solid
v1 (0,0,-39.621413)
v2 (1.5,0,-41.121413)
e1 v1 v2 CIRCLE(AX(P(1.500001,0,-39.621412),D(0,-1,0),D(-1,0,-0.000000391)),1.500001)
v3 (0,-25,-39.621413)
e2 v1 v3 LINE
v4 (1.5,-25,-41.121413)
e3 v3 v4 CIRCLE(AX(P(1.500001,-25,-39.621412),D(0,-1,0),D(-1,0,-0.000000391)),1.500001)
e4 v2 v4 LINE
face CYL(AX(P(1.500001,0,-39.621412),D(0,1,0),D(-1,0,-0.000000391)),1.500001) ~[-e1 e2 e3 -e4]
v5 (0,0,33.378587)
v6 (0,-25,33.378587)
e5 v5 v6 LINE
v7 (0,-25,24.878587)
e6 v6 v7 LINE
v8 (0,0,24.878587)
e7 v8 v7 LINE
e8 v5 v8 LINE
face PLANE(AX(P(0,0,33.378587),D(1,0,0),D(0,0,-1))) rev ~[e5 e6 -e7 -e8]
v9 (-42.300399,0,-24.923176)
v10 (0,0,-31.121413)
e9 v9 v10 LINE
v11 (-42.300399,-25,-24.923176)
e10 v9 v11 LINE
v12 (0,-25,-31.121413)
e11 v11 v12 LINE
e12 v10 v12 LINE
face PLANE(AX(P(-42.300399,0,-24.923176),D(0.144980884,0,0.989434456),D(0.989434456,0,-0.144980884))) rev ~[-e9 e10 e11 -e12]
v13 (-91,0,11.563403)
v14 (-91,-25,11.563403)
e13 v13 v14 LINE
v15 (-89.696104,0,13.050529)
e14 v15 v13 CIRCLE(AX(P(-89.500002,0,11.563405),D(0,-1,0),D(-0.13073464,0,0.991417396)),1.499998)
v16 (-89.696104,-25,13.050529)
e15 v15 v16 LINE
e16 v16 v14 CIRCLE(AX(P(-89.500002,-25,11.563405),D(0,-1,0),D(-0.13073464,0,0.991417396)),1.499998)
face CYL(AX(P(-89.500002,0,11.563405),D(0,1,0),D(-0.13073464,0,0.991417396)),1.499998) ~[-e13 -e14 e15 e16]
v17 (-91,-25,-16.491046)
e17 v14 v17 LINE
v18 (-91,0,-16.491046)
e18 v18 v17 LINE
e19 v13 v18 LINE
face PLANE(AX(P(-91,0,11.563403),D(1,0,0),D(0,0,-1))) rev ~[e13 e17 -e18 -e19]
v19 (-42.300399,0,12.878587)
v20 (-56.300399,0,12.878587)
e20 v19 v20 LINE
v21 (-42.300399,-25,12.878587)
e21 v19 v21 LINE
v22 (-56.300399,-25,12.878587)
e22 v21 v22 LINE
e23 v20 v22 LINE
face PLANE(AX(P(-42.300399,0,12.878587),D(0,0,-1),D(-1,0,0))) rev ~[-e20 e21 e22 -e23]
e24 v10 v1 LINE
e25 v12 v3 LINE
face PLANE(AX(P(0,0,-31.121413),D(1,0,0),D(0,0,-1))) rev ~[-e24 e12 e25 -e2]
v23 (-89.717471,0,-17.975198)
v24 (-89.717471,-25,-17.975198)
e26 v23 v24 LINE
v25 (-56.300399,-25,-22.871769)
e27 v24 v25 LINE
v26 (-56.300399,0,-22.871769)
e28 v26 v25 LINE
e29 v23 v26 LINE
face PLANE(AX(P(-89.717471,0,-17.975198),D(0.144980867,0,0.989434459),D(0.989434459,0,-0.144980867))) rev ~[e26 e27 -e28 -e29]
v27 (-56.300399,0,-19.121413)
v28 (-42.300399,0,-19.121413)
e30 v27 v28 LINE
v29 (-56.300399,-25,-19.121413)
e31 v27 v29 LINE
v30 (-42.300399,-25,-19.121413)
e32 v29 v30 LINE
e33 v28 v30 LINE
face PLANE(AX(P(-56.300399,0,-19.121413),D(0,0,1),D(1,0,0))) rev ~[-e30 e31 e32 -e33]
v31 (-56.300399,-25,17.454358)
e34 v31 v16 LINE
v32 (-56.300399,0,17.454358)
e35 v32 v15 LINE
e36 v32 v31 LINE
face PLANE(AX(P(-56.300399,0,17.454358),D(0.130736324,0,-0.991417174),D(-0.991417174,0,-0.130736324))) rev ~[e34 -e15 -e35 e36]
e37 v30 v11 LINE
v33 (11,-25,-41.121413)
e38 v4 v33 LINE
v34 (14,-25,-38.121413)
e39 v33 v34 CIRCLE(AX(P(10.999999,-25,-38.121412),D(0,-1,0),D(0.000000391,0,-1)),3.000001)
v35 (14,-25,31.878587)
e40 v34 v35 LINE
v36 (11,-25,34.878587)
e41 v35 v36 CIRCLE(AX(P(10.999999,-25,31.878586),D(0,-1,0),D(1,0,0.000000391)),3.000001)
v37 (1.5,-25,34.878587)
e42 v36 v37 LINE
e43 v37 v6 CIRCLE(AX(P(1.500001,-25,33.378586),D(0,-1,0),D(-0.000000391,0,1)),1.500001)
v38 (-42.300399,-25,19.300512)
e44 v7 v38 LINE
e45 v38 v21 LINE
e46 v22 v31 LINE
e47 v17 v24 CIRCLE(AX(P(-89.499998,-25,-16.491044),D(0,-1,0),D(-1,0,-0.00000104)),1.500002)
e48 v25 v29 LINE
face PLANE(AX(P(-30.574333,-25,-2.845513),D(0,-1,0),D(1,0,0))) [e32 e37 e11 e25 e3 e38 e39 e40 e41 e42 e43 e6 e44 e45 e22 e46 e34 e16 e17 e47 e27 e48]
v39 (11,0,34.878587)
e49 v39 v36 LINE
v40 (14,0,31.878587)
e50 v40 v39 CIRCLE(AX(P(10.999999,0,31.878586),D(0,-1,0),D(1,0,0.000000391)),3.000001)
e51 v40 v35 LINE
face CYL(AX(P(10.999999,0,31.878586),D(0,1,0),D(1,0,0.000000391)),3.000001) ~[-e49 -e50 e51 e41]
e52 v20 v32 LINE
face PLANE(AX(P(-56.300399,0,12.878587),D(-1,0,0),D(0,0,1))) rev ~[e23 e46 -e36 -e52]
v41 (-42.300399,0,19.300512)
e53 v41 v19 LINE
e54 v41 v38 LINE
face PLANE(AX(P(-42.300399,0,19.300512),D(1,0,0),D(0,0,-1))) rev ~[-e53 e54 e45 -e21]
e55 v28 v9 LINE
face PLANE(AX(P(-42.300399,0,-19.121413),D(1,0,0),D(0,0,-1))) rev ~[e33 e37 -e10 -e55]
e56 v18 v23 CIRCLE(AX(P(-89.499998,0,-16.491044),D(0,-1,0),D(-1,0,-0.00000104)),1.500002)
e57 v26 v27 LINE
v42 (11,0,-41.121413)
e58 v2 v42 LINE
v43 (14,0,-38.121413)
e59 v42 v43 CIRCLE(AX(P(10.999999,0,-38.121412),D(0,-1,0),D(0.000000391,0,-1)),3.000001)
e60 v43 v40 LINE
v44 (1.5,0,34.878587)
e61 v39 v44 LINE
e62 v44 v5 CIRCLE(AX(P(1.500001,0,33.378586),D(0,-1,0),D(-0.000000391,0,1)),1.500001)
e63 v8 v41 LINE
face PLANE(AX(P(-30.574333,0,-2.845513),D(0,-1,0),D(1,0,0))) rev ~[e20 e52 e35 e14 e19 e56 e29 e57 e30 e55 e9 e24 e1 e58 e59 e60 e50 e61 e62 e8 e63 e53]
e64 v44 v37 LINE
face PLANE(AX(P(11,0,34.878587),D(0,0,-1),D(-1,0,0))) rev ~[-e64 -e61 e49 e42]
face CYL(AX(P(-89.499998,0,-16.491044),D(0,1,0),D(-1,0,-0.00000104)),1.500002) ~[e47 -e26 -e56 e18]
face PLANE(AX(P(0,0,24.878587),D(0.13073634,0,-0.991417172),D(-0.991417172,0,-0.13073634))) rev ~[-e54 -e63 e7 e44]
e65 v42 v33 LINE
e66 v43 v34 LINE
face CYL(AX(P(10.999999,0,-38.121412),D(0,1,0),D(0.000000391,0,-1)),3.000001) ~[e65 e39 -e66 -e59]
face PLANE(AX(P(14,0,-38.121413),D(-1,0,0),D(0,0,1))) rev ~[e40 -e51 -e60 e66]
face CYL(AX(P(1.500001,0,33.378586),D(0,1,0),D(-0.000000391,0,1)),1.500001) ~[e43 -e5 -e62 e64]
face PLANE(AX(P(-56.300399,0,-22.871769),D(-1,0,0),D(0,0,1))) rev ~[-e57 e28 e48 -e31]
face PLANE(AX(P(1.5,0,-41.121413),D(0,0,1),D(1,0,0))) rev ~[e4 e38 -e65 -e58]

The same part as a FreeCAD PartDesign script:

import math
import FreeCAD as App
import Part
import Sketcher

V = App.Vector

doc = App.newDocument("Part")
params = doc.addObject("Spreadsheet::Sheet", "Params")
for row, (alias, value) in enumerate([
    ("sketch1_radius", "3.000001 mm"),
    ("sketch1_radius2", "1.500001 mm"),
    ("sketch1_width", "14 mm"),
    ("sketch1_height", "70 mm"),
    ("sketch1_width2", "9.5 mm"),
    ("pad1_length", "25 mm"),
], start=1):
    params.set(f"A{row}", alias)
    params.set(f"B{row}", "=" + value)
    params.setAlias(f"B{row}", alias)

body = doc.addObject("PartDesign::Body", "Body")

# Sketch on XZ plane
sketch1 = body.newObject("Sketcher::SketchObject", "Sketch")
sketch1.AttachmentSupport = (doc.getObject("XZ_Plane"), [""])
sketch1.MapMode = "FlatFace"
sketch1.addGeometry([
    Part.LineSegment(V(-56.3, -19.1, 0), V(-42.3, -19.1, 0)),  # 0
    Part.LineSegment(V(-42.3, -19.1, 0), V(-42.3, -24.9, 0)),  # 1
    Part.LineSegment(V(-42.3, -24.9, 0), V(0, -31.1, 0)),  # 2
    Part.LineSegment(V(0, -31.1, 0), V(0, -39.6, 0)),  # 3
    Part.ArcOfCircle(Part.Circle(V(1.5, -39.6, 0), V(0, 0, 1), 1.5), math.radians(-180), math.radians(-90)),  # 4
    Part.LineSegment(V(1.5, -41.1, 0), V(11, -41.1, 0)),  # 5
    Part.ArcOfCircle(Part.Circle(V(11, -38.1, 0), V(0, 0, 1), 3), math.radians(-90), math.radians(0)),  # 6
    Part.LineSegment(V(14, -38.1, 0), V(14, 31.9, 0)),  # 7
    Part.ArcOfCircle(Part.Circle(V(11, 31.9, 0), V(0, 0, 1), 3), math.radians(0), math.radians(90)),  # 8
    Part.LineSegment(V(11, 34.9, 0), V(1.5, 34.9, 0)),  # 9
    Part.ArcOfCircle(Part.Circle(V(1.5, 33.4, 0), V(0, 0, 1), 1.5), math.radians(90), math.radians(180)),  # 10
    Part.LineSegment(V(0, 33.4, 0), V(0, 24.9, 0)),  # 11
    Part.LineSegment(V(0, 24.9, 0), V(-42.3, 19.3, 0)),  # 12
    Part.LineSegment(V(-42.3, 19.3, 0), V(-42.3, 12.9, 0)),  # 13
    Part.LineSegment(V(-42.3, 12.9, 0), V(-56.3, 12.9, 0)),  # 14
    Part.LineSegment(V(-56.3, 12.9, 0), V(-56.3, 17.5, 0)),  # 15
    Part.LineSegment(V(-56.3, 17.5, 0), V(-89.7, 13.1, 0)),  # 16
    Part.ArcOfCircle(Part.Circle(V(-89.5, 11.6, 0), V(0, 0, 1), 1.5), math.radians(98), math.radians(180)),  # 17
    Part.LineSegment(V(-91, 11.6, 0), V(-91, -16.5, 0)),  # 18
    Part.ArcOfCircle(Part.Circle(V(-89.5, -16.5, 0), V(0, 0, 1), 1.5), math.radians(-180), math.radians(-98)),  # 19
    Part.LineSegment(V(-89.7, -18, 0), V(-56.3, -22.9, 0)),  # 20
    Part.LineSegment(V(-56.3, -22.9, 0), V(-56.3, -19.1, 0)),  # 21
], False)
sketch1.addConstraint([
    Sketcher.Constraint("Coincident", 0, 2, 1, 1),
    Sketcher.Constraint("Coincident", 1, 2, 2, 1),
    Sketcher.Constraint("Coincident", 2, 2, 3, 1),
    Sketcher.Constraint("Tangent", 3, 2, 4, 1),
    Sketcher.Constraint("Tangent", 4, 2, 5, 1),
    Sketcher.Constraint("Tangent", 5, 2, 6, 1),
    Sketcher.Constraint("Tangent", 6, 2, 7, 1),
    Sketcher.Constraint("Tangent", 7, 2, 8, 1),
    Sketcher.Constraint("Tangent", 8, 2, 9, 1),
    Sketcher.Constraint("Tangent", 9, 2, 10, 1),
    Sketcher.Constraint("Tangent", 10, 2, 11, 1),
    Sketcher.Constraint("Coincident", 11, 2, 12, 1),
    Sketcher.Constraint("Coincident", 12, 2, 13, 1),
    Sketcher.Constraint("Coincident", 13, 2, 14, 1),
    Sketcher.Constraint("Coincident", 14, 2, 15, 1),
    Sketcher.Constraint("Coincident", 15, 2, 16, 1),
    Sketcher.Constraint("Tangent", 16, 2, 17, 1),
    Sketcher.Constraint("Tangent", 17, 2, 18, 1),
    Sketcher.Constraint("Tangent", 18, 2, 19, 1),
    Sketcher.Constraint("Tangent", 19, 2, 20, 1),
    Sketcher.Constraint("Coincident", 20, 2, 21, 1),
    Sketcher.Constraint("Coincident", 21, 2, 0, 1),
    Sketcher.Constraint("Horizontal", 0),
    Sketcher.Constraint("Vertical", 1),
    Sketcher.Constraint("Vertical", 3),
    Sketcher.Constraint("Horizontal", 5),
    Sketcher.Constraint("Vertical", 7),
    Sketcher.Constraint("Horizontal", 9),
    Sketcher.Constraint("Vertical", 11),
    Sketcher.Constraint("Vertical", 13),
    Sketcher.Constraint("Horizontal", 14),
    Sketcher.Constraint("Vertical", 15),
    Sketcher.Constraint("Vertical", 18),
    Sketcher.Constraint("Vertical", 21),
    Sketcher.Constraint("Equal", 6, 8),
    Sketcher.Constraint("Equal", 4, 10),
    Sketcher.Constraint("Equal", 10, 19),
    Sketcher.Constraint("PointOnObject", 2, 2, -2),
    Sketcher.Constraint("PointOnObject", 10, 2, -2),
    Sketcher.Constraint("Parallel", 12, 16),
    Sketcher.Constraint("Parallel", 2, 20),
    Sketcher.Constraint("Vertical", 1, 2, 12, 2),
    Sketcher.Constraint("Vertical", 15, 2, 20, 2),
    Sketcher.Constraint("Equal", 3, 11),
    Sketcher.Constraint("Radius", 6, 3.000001),
    Sketcher.Constraint("Radius", 4, 1.500001),
    Sketcher.Constraint("DistanceX", 0, 1, 0, 2, 14.0),
    Sketcher.Constraint("DistanceY", 7, 1, 7, 2, 70.0),
    Sketcher.Constraint("DistanceX", 5, 1, 5, 2, 9.5),
    Sketcher.Constraint("DistanceY", 3, 2, 3, 1, 8.5),
    Sketcher.Constraint("DistanceX", 17, 2, -1, 1, 91.0),
    Sketcher.Constraint("DistanceY", 6, 3, 0, 2, 18.999999),
    Sketcher.Constraint("DistanceY", 0, 2, 13, 2, 32.0),
    Sketcher.Constraint("DistanceX", 17, 3, 8, 3, 100.500001),
    Sketcher.Constraint("Distance", 2, 42.752098),
    Sketcher.Constraint("Distance", 12, 42.666599),
    Sketcher.Constraint("DistanceY", 15, 1, 15, 2, 4.575771),
    Sketcher.Constraint("DistanceY", 18, 2, 18, 1, 28.054449),
    Sketcher.Constraint("DistanceX", 0, 2, -1, 1, 42.300399),
    Sketcher.Constraint("DistanceY", 6, 3, -1, 1, 38.121412),
])
sketch1.setExpression("Constraints[44]", "Params.sketch1_radius")
sketch1.setExpression("Constraints[45]", "Params.sketch1_radius2")
sketch1.setExpression("Constraints[46]", "Params.sketch1_width")
sketch1.setExpression("Constraints[47]", "Params.sketch1_height")
sketch1.setExpression("Constraints[48]", "Params.sketch1_width2")
pad1 = body.newObject("PartDesign::Pad", "Pad")
pad1.Profile = sketch1
pad1.setExpression("Length", "Params.pad1_length")

doc.recompute()
